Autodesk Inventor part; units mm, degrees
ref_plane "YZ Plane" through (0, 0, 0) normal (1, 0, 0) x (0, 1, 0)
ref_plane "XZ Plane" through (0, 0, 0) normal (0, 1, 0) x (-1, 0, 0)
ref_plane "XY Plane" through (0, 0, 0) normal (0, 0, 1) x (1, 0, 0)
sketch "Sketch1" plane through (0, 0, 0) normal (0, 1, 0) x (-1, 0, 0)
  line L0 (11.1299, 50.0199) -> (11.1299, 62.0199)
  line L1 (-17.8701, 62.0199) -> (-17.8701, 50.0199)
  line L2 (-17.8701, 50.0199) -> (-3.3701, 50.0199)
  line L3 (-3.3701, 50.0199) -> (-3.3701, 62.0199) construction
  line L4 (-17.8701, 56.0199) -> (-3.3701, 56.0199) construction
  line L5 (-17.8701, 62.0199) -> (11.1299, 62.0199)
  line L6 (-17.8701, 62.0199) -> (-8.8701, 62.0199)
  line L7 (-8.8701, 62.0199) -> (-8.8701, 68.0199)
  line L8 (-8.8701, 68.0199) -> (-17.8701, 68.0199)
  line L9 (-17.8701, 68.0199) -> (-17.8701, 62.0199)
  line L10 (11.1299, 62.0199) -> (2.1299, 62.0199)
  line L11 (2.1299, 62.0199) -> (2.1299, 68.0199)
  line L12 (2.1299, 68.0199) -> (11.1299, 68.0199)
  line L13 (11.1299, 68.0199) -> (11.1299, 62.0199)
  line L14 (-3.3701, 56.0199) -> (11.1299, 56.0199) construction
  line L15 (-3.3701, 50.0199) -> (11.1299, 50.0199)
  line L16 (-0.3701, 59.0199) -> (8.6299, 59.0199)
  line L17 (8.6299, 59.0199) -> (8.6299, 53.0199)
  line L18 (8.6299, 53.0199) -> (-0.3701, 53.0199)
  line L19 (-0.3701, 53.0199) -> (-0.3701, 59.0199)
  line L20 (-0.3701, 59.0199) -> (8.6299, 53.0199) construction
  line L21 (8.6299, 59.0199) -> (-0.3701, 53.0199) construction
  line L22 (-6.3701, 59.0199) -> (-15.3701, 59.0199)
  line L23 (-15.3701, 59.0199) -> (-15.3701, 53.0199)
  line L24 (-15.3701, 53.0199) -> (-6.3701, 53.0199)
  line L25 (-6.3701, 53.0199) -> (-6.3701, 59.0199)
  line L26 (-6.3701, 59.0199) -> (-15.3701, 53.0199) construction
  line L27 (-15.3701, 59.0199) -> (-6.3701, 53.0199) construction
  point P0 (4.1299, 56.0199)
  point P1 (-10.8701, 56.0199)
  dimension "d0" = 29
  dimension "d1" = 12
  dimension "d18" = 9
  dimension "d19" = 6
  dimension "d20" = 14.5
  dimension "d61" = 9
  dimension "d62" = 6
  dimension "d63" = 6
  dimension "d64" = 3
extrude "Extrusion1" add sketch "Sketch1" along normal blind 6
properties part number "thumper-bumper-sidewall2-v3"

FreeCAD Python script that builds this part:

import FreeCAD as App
import Part
import Sketcher

V = App.Vector


def add_polygon(sketch, points):
    """Adds a closed chain of lines whose ends are joined by coincident constraints."""
    first, n = sketch.GeometryCount, len(points)
    for a, b in zip(points, points[1:] + points[:1]):
        sketch.addGeometry(Part.LineSegment(App.Vector(*a, 0), App.Vector(*b, 0)), False)
    for i in range(n):
        sketch.addConstraint(Sketcher.Constraint("Coincident", first + i, 2, first + (i + 1) % n, 1))

doc = App.newDocument("Part")
params = doc.addObject("Spreadsheet::Sheet", "Params")
for row, (alias, value) in enumerate([
    ("sketch1_width", "9 mm"),
    ("sketch1_width2", "29 mm"),
    ("sketch1_height", "6 mm"),
    ("pad1_length", "6 mm"),
], start=1):
    params.set(f"A{row}", alias)
    params.set(f"B{row}", "=" + value)
    params.setAlias(f"B{row}", alias)

body = doc.addObject("PartDesign::Body", "Body")

sketch1 = body.newObject("Sketcher::SketchObject", "Sketch")
sketch1.AttachmentSupport = (doc.getObject("XZ_Plane"), [""])
sketch1.MapMode = "FlatFace"
add_polygon(sketch1, [(-11.1299, 50.0199), (-11.1299, 68.0199), (-2.1299, 68.0199), (-2.1299, 62.0199), (8.8701, 62.0199), (8.8701, 68.0199), (17.8701, 68.0199), (17.8701, 50.0199)])
add_polygon(sketch1, [(15.3701, 59.0199), (6.3701, 59.0199), (6.3701, 53.0199), (15.3701, 53.0199)])
add_polygon(sketch1, [(0.3701, 53.0199), (0.3701, 59.0199), (-8.6299, 59.0199), (-8.6299, 53.0199)])
sketch1.addConstraint([
    Sketcher.Constraint("Vertical", 0),
    Sketcher.Constraint("Horizontal", 1),
    Sketcher.Constraint("Vertical", 2),
    Sketcher.Constraint("Horizontal", 3),
    Sketcher.Constraint("Vertical", 4),
    Sketcher.Constraint("Horizontal", 5),
    Sketcher.Constraint("Vertical", 6),
    Sketcher.Constraint("Horizontal", 7),
    Sketcher.Constraint("Horizontal", 8),
    Sketcher.Constraint("Vertical", 9),
    Sketcher.Constraint("Horizontal", 10),
    Sketcher.Constraint("Vertical", 11),
    Sketcher.Constraint("Vertical", 12),
    Sketcher.Constraint("Horizontal", 13),
    Sketcher.Constraint("Vertical", 14),
    Sketcher.Constraint("Horizontal", 15),
    Sketcher.Constraint("Horizontal", 1, 2, 4, 2),
    Sketcher.Constraint("Horizontal", 11, 2, 12, 2),
    Sketcher.Constraint("Horizontal", 10, 2, 14, 2),
    Sketcher.Constraint("Equal", 1, 5),
    Sketcher.Constraint("Equal", 5, 8),
    Sketcher.Constraint("Equal", 10, 13),
    Sketcher.Constraint("Equal", 4, 9),
    Sketcher.Constraint("DistanceX", 1, 1, 1, 2, 9.0),
    Sketcher.Constraint("DistanceX", 7, 2, 7, 1, 29.0),
    Sketcher.Constraint("DistanceY", 2, 2, 2, 1, 6.0),
    Sketcher.Constraint("DistanceY", 6, 2, 3, 2, 12.0),
    Sketcher.Constraint("DistanceY", 8, 2, 3, 2, 3.0),
    Sketcher.Constraint("DistanceX", 12, 2, 8, 2, 6.0),
    Sketcher.Constraint("DistanceX", 8, 2, 3, 2, 2.5),
    Sketcher.Constraint("DistanceX", 0, 2, -1, 1, 11.13),
    Sketcher.Constraint("DistanceY", -1, 1, 0, 2, 68.02),
])
sketch1.setExpression("Constraints[39]", "Params.sketch1_width")
sketch1.setExpression("Constraints[40]", "Params.sketch1_width2")
sketch1.setExpression("Constraints[41]", "Params.sketch1_height")
pad1 = body.newObject("PartDesign::Pad", "Pad")
pad1.Profile = sketch1
pad1.setExpression("Length", "Params.pad1_length")
pad1.Reversed = True

doc.recompute()
